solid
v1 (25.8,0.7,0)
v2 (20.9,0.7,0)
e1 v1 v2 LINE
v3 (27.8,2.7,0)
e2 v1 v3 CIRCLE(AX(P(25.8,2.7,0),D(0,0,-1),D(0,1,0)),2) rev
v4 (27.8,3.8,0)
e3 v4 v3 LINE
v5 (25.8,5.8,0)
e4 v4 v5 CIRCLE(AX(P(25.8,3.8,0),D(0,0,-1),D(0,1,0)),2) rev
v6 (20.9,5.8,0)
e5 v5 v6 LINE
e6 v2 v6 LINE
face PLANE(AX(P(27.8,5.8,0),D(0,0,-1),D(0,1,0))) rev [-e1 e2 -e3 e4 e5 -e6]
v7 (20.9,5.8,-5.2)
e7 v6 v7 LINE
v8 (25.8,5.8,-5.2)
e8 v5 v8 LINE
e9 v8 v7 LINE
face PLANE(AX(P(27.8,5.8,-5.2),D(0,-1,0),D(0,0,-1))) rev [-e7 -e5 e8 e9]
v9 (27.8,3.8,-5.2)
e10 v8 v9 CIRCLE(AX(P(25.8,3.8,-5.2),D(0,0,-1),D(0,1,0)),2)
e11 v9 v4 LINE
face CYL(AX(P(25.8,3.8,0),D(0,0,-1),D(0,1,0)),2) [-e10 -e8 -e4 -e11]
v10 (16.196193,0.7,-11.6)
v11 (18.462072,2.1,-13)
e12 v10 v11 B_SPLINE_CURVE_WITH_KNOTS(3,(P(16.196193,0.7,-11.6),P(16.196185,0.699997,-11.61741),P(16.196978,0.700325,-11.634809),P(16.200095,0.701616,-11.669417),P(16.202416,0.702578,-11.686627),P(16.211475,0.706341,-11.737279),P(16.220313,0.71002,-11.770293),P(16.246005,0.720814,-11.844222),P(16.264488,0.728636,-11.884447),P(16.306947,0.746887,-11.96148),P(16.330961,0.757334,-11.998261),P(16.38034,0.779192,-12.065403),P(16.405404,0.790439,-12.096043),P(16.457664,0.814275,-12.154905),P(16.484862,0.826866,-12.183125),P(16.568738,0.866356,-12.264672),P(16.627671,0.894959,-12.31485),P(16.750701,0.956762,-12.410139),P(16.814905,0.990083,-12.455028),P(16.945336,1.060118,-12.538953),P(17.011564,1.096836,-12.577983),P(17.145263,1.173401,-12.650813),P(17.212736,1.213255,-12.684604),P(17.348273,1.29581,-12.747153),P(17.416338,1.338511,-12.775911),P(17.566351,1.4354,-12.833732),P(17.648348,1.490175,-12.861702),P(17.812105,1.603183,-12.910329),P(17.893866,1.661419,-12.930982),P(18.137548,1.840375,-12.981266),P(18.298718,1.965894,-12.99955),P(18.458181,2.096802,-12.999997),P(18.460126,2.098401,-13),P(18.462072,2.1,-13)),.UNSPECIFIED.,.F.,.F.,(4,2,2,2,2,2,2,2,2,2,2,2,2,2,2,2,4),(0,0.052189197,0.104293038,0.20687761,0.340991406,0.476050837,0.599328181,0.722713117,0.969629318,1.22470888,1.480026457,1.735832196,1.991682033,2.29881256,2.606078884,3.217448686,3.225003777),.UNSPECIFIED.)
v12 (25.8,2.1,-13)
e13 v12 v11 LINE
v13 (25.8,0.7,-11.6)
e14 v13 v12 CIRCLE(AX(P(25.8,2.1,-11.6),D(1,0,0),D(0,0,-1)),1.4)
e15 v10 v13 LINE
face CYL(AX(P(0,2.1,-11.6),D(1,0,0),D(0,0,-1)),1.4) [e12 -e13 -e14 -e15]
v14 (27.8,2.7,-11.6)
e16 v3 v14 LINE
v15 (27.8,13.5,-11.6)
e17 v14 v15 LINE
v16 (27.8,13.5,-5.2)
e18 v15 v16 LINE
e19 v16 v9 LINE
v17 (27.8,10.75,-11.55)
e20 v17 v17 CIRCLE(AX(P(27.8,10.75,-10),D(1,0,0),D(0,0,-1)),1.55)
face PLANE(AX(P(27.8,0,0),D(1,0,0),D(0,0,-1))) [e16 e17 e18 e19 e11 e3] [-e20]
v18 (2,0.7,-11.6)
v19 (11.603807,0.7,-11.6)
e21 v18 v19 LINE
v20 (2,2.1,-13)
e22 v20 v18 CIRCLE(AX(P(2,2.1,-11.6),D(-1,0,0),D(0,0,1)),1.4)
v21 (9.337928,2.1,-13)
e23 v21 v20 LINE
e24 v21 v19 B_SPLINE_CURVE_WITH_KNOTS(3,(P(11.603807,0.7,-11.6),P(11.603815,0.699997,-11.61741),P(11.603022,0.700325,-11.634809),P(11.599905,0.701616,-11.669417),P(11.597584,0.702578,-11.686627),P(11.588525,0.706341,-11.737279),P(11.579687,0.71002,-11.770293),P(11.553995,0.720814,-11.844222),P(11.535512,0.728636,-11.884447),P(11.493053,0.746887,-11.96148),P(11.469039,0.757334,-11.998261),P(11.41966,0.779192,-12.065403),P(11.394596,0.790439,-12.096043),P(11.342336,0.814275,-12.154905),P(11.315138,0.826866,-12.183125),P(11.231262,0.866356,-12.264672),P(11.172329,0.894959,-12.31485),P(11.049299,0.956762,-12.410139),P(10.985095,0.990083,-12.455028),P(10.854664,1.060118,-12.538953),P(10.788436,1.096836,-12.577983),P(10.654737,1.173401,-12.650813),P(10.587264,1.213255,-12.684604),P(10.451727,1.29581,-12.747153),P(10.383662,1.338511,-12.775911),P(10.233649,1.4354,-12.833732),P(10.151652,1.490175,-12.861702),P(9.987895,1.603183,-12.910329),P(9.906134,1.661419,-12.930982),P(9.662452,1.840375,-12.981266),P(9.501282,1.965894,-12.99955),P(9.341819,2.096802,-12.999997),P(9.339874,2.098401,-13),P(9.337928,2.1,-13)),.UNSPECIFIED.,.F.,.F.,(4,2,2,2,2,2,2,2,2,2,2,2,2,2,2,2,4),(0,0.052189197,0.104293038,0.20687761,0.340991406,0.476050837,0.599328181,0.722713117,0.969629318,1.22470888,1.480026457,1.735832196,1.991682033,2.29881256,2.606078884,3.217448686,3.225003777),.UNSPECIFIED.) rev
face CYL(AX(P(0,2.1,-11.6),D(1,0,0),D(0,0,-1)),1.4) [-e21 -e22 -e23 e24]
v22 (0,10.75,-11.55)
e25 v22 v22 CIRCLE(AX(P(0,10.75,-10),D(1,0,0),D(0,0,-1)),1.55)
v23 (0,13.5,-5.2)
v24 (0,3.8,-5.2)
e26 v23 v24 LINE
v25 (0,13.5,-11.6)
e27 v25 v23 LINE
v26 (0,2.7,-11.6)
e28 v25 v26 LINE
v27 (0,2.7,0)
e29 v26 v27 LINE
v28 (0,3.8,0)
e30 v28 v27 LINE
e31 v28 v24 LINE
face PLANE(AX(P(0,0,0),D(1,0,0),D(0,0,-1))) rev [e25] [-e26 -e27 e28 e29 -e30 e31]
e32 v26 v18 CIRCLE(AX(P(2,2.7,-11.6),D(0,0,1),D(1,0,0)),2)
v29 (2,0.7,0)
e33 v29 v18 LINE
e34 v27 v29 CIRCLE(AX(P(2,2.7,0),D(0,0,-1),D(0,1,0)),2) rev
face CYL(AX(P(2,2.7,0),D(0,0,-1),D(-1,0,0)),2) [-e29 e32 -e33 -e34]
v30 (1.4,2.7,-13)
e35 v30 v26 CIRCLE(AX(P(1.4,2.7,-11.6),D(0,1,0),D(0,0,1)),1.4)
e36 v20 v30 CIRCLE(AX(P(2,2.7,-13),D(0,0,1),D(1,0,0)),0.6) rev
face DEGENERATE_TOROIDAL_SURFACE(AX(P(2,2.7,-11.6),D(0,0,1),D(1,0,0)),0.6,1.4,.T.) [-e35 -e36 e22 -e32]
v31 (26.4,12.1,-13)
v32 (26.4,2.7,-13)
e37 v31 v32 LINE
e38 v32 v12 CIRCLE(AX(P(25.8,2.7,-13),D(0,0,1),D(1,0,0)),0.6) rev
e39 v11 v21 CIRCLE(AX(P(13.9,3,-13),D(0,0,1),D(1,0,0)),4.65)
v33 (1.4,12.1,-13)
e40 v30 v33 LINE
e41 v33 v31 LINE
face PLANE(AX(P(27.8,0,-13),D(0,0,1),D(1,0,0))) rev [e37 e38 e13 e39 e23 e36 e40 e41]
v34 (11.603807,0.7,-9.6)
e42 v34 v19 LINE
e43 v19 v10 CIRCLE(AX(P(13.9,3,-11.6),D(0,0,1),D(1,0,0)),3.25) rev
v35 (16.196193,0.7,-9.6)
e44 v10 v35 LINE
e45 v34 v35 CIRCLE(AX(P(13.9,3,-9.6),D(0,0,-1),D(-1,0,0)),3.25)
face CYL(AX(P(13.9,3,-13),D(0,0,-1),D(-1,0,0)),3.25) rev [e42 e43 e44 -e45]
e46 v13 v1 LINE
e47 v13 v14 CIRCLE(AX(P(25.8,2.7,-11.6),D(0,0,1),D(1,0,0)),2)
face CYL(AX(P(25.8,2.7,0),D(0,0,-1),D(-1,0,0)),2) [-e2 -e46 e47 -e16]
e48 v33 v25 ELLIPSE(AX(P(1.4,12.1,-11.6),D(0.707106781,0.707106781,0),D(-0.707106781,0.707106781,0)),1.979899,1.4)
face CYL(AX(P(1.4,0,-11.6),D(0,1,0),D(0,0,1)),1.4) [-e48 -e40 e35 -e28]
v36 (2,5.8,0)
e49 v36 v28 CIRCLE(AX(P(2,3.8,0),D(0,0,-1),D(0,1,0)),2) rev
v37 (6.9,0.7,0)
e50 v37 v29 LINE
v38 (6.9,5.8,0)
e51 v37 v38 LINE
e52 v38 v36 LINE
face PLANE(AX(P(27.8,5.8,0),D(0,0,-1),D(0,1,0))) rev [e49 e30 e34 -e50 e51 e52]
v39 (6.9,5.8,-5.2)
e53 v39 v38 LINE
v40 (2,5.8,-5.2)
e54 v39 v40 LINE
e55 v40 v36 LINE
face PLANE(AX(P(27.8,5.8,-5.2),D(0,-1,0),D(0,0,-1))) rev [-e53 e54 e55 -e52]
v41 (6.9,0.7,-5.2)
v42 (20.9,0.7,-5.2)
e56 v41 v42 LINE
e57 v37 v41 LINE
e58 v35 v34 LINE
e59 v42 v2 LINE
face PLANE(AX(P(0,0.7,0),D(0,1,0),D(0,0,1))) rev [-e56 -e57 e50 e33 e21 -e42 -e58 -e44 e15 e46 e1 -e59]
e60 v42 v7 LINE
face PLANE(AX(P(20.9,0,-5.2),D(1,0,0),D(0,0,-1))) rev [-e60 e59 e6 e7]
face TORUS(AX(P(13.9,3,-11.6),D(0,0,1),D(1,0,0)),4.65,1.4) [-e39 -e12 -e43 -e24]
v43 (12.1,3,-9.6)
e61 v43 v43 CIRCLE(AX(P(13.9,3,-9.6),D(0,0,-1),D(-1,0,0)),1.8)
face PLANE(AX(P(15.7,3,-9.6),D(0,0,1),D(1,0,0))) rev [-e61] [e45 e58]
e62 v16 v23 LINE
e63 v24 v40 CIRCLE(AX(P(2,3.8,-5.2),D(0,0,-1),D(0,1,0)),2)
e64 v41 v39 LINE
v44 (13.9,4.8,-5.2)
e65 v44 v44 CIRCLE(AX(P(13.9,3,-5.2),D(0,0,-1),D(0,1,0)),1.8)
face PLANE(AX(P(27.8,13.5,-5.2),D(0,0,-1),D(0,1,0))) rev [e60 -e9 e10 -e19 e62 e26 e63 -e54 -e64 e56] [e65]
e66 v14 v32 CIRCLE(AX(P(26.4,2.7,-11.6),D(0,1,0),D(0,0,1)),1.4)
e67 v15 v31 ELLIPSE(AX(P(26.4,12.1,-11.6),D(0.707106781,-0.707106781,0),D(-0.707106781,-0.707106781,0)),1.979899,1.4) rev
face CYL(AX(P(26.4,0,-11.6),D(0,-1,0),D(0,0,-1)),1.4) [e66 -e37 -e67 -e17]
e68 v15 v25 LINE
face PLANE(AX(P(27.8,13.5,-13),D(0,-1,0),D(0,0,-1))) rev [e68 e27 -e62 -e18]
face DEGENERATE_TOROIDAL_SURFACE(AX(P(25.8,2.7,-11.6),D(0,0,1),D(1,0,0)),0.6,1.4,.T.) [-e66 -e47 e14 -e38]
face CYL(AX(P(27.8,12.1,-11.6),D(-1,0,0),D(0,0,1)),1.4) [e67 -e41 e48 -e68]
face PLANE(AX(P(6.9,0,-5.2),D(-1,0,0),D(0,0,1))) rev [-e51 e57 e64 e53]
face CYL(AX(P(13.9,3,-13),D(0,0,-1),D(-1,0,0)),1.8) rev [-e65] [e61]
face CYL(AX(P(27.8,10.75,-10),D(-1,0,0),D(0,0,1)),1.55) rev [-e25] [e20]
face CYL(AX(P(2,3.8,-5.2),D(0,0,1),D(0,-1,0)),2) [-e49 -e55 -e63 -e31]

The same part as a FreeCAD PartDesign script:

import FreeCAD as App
import Part
import Sketcher


def edges_at(feature, points):
    """Names of the edges that pass closest to the given points."""
    edges = feature.Shape.Edges
    near = lambda p: min(range(len(edges)), key=lambda i: edges[i].distToShape(Part.Vertex(*p))[0])
    return sorted({f"Edge{near(p) + 1}" for p in points})


def add_polygon(sketch, points):
    """Adds a closed chain of lines whose ends are joined by coincident constraints."""
    first, n = sketch.GeometryCount, len(points)
    for a, b in zip(points, points[1:] + points[:1]):
        sketch.addGeometry(Part.LineSegment(App.Vector(*a, 0), App.Vector(*b, 0)), False)
    for i in range(n):
        sketch.addConstraint(Sketcher.Constraint("Coincident", first + i, 2, first + (i + 1) % n, 1))

doc = App.newDocument("Part")
body = doc.addObject("PartDesign::Body", "Body")

# Sketch on YZ plane
sketch1 = body.newObject("Sketcher::SketchObject", "Sketch")
sketch1.AttachmentSupport = (doc.getObject("YZ_Plane"), [""])
sketch1.MapMode = "FlatFace"
add_polygon(sketch1, [(0, 0), (0, -13), (13.5, -13), (13.5, -5.2), (5.8, -5.2), (5.8, 0)])  # lines 0-5
sketch1.addGeometry(Part.Circle(App.Vector(10.8, -10, 0), App.Vector(0, 0, 1), 1.6), False)  # 6
sketch1.addConstraint([
    Sketcher.Constraint("Vertical", 0),
    Sketcher.Constraint("Horizontal", 1),
    Sketcher.Constraint("Vertical", 2),
    Sketcher.Constraint("Horizontal", 3),
    Sketcher.Constraint("Vertical", 4),
    Sketcher.Constraint("Horizontal", 5),
    Sketcher.Constraint("Coincident", 5, 2, -1, 1),
    Sketcher.Constraint("Diameter", 6, 3.1),
    Sketcher.Constraint("DistanceY", 0, 2, 0, 1, 13.0),
    Sketcher.Constraint("DistanceX", 1, 1, 1, 2, 13.5),
    Sketcher.Constraint("DistanceX", 3, 2, 3, 1, 7.7),
    Sketcher.Constraint("DistanceY", 2, 1, 2, 2, 7.8),
    Sketcher.Constraint("DistanceY", 6, 3, -1, 1, 10.0),
    Sketcher.Constraint("DistanceX", -1, 1, 6, 3, 10.75),
])
pad1 = body.newObject("PartDesign::Pad", "Pad")
pad1.Profile = sketch1
pad1.Length = 27.8

# Sketch on XZ plane
sketch2 = body.newObject("Sketcher::SketchObject", "Sketch001")
sketch2.AttachmentSupport = (doc.getObject("XZ_Plane"), [""])
sketch2.MapMode = "FlatFace"
sketch2.AttachmentOffset = App.Placement(App.Vector(0, 0, -5.8), App.Rotation())
add_polygon(sketch2, [(7, -5), (7, 0), (21, 0), (21, -5)])  # lines 0-3
sketch2.addConstraint([
    Sketcher.Constraint("Vertical", 0),
    Sketcher.Constraint("Horizontal", 1),
    Sketcher.Constraint("Vertical", 2),
    Sketcher.Constraint("Horizontal", 3),
    Sketcher.Constraint("PointOnObject", 0, 2, -1),
    Sketcher.Constraint("DistanceX", 1, 1, 1, 2, 14.0),
    Sketcher.Constraint("DistanceY", 0, 1, 0, 2, 5.2),
    Sketcher.Constraint("DistanceX", -1, 1, 0, 2, 6.9),
])
pocket1 = body.newObject("PartDesign::Pocket", "Pocket")
pocket1.Profile = sketch2
pocket1.Type = "ThroughAll"
pocket1.Reversed = True

# Sketch on XY plane
sketch3 = body.newObject("Sketcher::SketchObject", "Sketch002")
sketch3.AttachmentSupport = (doc.getObject("XY_Plane"), [""])
sketch3.MapMode = "FlatFace"
sketch3.AttachmentOffset = App.Placement(App.Vector(0, 0, -13), App.Rotation())
sketch3.addGeometry(Part.Circle(App.Vector(13.9, 3, 0), App.Vector(0, 0, 1), 1.8), False)
sketch3.addConstraint([
    Sketcher.Constraint("Diameter", 0, 3.6),
    Sketcher.Constraint("DistanceY", -1, 1, 0, 3, 3.0),
    Sketcher.Constraint("DistanceX", -1, 1, 0, 3, 13.9),
])
doc.recompute()
hole = body.newObject("PartDesign::Hole", "Hole")
hole.Profile = sketch3
hole.ThreadType = "None"
hole.Diameter = 3.6
hole.DepthType = "ThroughAll"
hole.HoleCutType = "Counterbore"
hole.HoleCutDiameter = 6.5
hole.HoleCutDepth = 3.4
hole.Reversed = True

# Sketch on XZ plane
sketch4 = body.newObject("Sketcher::SketchObject", "Sketch003")
sketch4.AttachmentSupport = (doc.getObject("XZ_Plane"), [""])
sketch4.MapMode = "FlatFace"
add_polygon(sketch4, [(0, 0), (0, -13), (28, -13), (28, 0)])  # lines 0-3
sketch4.addConstraint([
    Sketcher.Constraint("Vertical", 0),
    Sketcher.Constraint("Horizontal", 1),
    Sketcher.Constraint("Vertical", 2),
    Sketcher.Constraint("Horizontal", 3),
    Sketcher.Constraint("Coincident", 3, 2, -1, 1),
    Sketcher.Constraint("DistanceY", 0, 2, 0, 1, 13.0),
    Sketcher.Constraint("DistanceX", 1, 1, 1, 2, 27.8),
])
pocket2 = body.newObject("PartDesign::Pocket", "Pocket001")
pocket2.Profile = sketch4
pocket2.Length = 0.7
doc.recompute()

fillet = body.newObject("PartDesign::Fillet", "Fillet")
fillet.Base = (pocket2, edges_at(pocket2, [
    (27.8, 5.8, -2.6),
    (0, 0.7, -6.5),
    (27.8, 0.7, -6.5),
    (0, 5.8, -2.6),
]))
fillet.Radius = 2
doc.recompute()

fillet2 = body.newObject("PartDesign::Fillet", "Fillet001")
fillet2.Base = (fillet, edges_at(fillet, [
    (6.802, 0.7, -13),
    (0, 8.1, -13),
    (0.586, 1.286, -13),
    (27.214, 1.286, -13),
    (13.9, 13.5, -13),
    (13.9, 6.25, -13),
    (20.998, 0.7, -13),
    (27.8, 8.1, -13),
]))
fillet2.Radius = 1.4

doc.recompute()
